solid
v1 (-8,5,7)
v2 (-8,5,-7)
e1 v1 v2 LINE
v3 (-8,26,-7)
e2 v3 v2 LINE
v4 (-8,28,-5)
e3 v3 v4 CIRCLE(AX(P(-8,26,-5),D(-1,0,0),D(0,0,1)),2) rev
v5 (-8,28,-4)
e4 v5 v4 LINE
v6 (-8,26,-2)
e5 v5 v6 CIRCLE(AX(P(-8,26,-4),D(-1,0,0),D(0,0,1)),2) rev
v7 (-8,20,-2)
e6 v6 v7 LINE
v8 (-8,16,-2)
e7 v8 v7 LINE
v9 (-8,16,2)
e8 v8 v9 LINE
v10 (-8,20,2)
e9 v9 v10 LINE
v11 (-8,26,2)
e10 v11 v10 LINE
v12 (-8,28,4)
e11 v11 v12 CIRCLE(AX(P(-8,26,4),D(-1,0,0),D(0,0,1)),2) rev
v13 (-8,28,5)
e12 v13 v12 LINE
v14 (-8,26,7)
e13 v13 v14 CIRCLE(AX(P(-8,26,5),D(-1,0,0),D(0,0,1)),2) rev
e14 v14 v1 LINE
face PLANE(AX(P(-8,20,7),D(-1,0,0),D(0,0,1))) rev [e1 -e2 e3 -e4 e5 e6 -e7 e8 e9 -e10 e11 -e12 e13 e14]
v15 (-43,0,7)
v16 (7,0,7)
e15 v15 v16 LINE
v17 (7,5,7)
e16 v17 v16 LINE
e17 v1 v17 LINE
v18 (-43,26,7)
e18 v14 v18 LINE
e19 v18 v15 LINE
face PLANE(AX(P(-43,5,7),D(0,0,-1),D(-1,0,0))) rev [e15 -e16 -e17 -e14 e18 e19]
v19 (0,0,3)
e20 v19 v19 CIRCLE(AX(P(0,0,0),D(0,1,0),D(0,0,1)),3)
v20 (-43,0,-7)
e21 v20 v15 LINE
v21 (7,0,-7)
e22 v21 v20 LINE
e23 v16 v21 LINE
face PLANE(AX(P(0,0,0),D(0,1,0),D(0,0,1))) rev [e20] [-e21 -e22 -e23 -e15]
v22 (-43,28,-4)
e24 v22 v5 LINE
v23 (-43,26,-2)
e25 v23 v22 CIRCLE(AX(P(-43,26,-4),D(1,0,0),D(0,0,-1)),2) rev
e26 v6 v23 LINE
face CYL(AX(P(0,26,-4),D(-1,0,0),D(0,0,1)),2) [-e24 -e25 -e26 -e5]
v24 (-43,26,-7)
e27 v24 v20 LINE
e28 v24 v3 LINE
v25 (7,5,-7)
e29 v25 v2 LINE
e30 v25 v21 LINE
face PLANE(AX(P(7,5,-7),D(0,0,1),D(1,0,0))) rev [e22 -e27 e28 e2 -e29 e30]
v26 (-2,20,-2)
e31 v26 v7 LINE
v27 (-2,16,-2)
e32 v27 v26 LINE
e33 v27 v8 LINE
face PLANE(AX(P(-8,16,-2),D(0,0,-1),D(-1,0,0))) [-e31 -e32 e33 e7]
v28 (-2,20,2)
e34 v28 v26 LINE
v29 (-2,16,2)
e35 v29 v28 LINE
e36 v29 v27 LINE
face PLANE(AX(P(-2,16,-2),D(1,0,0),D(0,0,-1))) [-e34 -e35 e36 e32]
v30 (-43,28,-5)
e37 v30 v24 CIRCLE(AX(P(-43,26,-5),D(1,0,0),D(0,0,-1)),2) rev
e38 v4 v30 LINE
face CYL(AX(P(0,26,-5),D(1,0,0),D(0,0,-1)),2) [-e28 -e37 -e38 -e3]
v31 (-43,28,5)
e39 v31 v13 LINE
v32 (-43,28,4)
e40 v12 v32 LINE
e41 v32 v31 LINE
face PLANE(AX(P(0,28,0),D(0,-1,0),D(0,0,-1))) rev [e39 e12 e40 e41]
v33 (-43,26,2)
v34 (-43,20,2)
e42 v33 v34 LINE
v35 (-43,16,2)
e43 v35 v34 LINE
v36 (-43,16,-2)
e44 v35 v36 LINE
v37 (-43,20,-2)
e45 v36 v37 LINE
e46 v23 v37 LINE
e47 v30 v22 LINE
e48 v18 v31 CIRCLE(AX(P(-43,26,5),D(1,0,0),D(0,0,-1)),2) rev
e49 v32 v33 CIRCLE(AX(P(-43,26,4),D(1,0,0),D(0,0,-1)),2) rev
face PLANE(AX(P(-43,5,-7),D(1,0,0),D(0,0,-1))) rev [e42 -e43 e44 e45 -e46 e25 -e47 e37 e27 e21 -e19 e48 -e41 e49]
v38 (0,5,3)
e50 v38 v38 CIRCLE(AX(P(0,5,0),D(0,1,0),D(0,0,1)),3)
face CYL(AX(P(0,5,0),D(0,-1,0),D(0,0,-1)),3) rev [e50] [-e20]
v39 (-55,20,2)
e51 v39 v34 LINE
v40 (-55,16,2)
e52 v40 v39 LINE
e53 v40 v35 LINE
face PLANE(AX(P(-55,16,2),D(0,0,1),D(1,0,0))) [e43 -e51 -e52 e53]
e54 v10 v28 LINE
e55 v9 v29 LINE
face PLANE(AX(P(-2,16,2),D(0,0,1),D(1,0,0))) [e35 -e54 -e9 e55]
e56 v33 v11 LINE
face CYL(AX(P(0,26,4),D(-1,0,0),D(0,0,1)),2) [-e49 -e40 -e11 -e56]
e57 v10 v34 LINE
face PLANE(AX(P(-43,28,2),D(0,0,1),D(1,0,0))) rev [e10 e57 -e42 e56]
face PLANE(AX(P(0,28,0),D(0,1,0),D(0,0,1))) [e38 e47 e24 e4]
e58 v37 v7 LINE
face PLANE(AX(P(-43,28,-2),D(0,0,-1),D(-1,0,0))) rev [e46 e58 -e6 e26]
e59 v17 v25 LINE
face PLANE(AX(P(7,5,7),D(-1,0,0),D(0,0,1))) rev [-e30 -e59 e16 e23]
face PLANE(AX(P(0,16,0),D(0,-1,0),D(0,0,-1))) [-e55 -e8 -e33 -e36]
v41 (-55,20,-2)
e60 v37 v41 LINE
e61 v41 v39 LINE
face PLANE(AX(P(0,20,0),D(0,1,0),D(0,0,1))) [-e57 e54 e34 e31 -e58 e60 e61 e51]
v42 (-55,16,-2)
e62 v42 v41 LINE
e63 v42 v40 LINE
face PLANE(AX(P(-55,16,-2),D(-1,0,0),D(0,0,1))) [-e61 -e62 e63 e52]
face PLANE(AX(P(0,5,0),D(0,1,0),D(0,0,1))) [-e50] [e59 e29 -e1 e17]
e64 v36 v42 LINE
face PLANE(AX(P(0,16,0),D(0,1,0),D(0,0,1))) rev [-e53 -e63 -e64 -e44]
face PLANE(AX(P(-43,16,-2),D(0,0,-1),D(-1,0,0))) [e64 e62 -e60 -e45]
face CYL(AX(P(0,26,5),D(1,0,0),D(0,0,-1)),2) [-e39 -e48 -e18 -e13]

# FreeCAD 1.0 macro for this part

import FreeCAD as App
import Part
import Sketcher
Q = App.Units.Quantity


def edges_at(feature, points):
    """Names of the edges that pass closest to the given points."""
    edges = feature.Shape.Edges
    near = lambda p: min(range(len(edges)), key=lambda i: edges[i].distToShape(Part.Vertex(*p))[0])
    return sorted({f"Edge{near(p) + 1}" for p in points})

doc = App.newDocument("Part")
body = doc.addObject("PartDesign::Body", "Body")

# Sketch on XZ plane
sketch1 = body.newObject("Sketcher::SketchObject", "Sketch")
sketch1.AttachmentSupport = (doc.getObject("XZ_Plane"), [""])
sketch1.MapMode = "FlatFace"
sketch1.addGeometry(Part.LineSegment(App.Vector(-43, -7, 0), App.Vector(-43, 7, 0)), False)
sketch1.addGeometry(Part.LineSegment(App.Vector(-43, 7, 0), App.Vector(7, 7, 0)), False)
sketch1.addGeometry(Part.LineSegment(App.Vector(7, 7, 0), App.Vector(7, -7, 0)), False)
sketch1.addGeometry(Part.LineSegment(App.Vector(7, -7, 0), App.Vector(-43, -7, 0)), False)
sketch1.addGeometry(Part.Circle(App.Vector(0, 0, 0), App.Vector(0, 0, 1), 3), False)
sketch1.addConstraint(Sketcher.Constraint("Coincident", 0, 2, 1, 1))
sketch1.addConstraint(Sketcher.Constraint("Coincident", 1, 2, 2, 1))
sketch1.addConstraint(Sketcher.Constraint("Coincident", 2, 2, 3, 1))
sketch1.addConstraint(Sketcher.Constraint("Coincident", 3, 2, 0, 1))
sketch1.addConstraint(Sketcher.Constraint("Vertical", 0))
sketch1.addConstraint(Sketcher.Constraint("Horizontal", 1))
sketch1.addConstraint(Sketcher.Constraint("Vertical", 2))
sketch1.addConstraint(Sketcher.Constraint("Horizontal", 3))
sketch1.addConstraint(Sketcher.Constraint("Coincident", 4, 3, -1, 1))
sketch1.addConstraint(Sketcher.Constraint("Diameter", 4, Q("6 mm")))
sketch1.addConstraint(Sketcher.Constraint("DistanceX", 1, 1, 1, 2, Q("50 mm")))
sketch1.addConstraint(Sketcher.Constraint("DistanceY", 0, 1, 0, 2, Q("14 mm")))
sketch1.addConstraint(Sketcher.Constraint("DistanceX", 0, 2, -1, 1, Q("43 mm")))
sketch1.addConstraint(Sketcher.Constraint("DistanceY", -1, 1, 0, 2, Q("7 mm")))
pad1 = body.newObject("PartDesign::Pad", "Pad")
pad1.Profile = sketch1
pad1.Length = 5
pad1.Reversed = True

# Sketch on XZ plane
sketch2 = body.newObject("Sketcher::SketchObject", "Sketch001")
sketch2.AttachmentSupport = (doc.getObject("XZ_Plane"), [""])
sketch2.MapMode = "FlatFace"
sketch2.AttachmentOffset = App.Placement(App.Vector(0, 0, -5), App.Rotation())
sketch2.addGeometry(Part.LineSegment(App.Vector(-43, -7, 0), App.Vector(-43, 7, 0)), False)
sketch2.addGeometry(Part.LineSegment(App.Vector(-43, 7, 0), App.Vector(-8, 7, 0)), False)
sketch2.addGeometry(Part.LineSegment(App.Vector(-8, 7, 0), App.Vector(-8, -7, 0)), False)
sketch2.addGeometry(Part.LineSegment(App.Vector(-8, -7, 0), App.Vector(-43, -7, 0)), False)
sketch2.addConstraint(Sketcher.Constraint("Coincident", 0, 2, 1, 1))
sketch2.addConstraint(Sketcher.Constraint("Coincident", 1, 2, 2, 1))
sketch2.addConstraint(Sketcher.Constraint("Coincident", 2, 2, 3, 1))
sketch2.addConstraint(Sketcher.Constraint("Coincident", 3, 2, 0, 1))
sketch2.addConstraint(Sketcher.Constraint("Vertical", 0))
sketch2.addConstraint(Sketcher.Constraint("Horizontal", 1))
sketch2.addConstraint(Sketcher.Constraint("Vertical", 2))
sketch2.addConstraint(Sketcher.Constraint("Horizontal", 3))
sketch2.addConstraint(Sketcher.Constraint("DistanceX", 1, 1, 1, 2, Q("35 mm")))
sketch2.addConstraint(Sketcher.Constraint("DistanceY", 0, 1, 0, 2, Q("14 mm")))
sketch2.addConstraint(Sketcher.Constraint("DistanceX", 0, 2, -1, 1, Q("43 mm")))
sketch2.addConstraint(Sketcher.Constraint("DistanceY", -1, 1, 0, 2, Q("7 mm")))
pad2 = body.newObject("PartDesign::Pad", "Pad001")
pad2.Profile = sketch2
pad2.Length = 15
pad2.Reversed = True

# Sketch on XZ plane
sketch3 = body.newObject("Sketcher::SketchObject", "Sketch002")
sketch3.AttachmentSupport = (doc.getObject("XZ_Plane"), [""])
sketch3.MapMode = "FlatFace"
sketch3.AttachmentOffset = App.Placement(App.Vector(0, 0, -20), App.Rotation())
sketch3.addGeometry(Part.LineSegment(App.Vector(-43, 2, 0), App.Vector(-43, 7, 0)), False)
sketch3.addGeometry(Part.LineSegment(App.Vector(-43, 7, 0), App.Vector(-8, 7, 0)), False)
sketch3.addGeometry(Part.LineSegment(App.Vector(-8, 7, 0), App.Vector(-8, 2, 0)), False)
sketch3.addGeometry(Part.LineSegment(App.Vector(-8, 2, 0), App.Vector(-43, 2, 0)), False)
sketch3.addGeometry(Part.LineSegment(App.Vector(-43, -7, 0), App.Vector(-43, -2, 0)), False)
sketch3.addGeometry(Part.LineSegment(App.Vector(-43, -2, 0), App.Vector(-8, -2, 0)), False)
sketch3.addGeometry(Part.LineSegment(App.Vector(-8, -2, 0), App.Vector(-8, -7, 0)), False)
sketch3.addGeometry(Part.LineSegment(App.Vector(-8, -7, 0), App.Vector(-43, -7, 0)), False)
sketch3.addConstraint(Sketcher.Constraint("Coincident", 0, 2, 1, 1))
sketch3.addConstraint(Sketcher.Constraint("Coincident", 1, 2, 2, 1))
sketch3.addConstraint(Sketcher.Constraint("Coincident", 2, 2, 3, 1))
sketch3.addConstraint(Sketcher.Constraint("Coincident", 3, 2, 0, 1))
sketch3.addConstraint(Sketcher.Constraint("Coincident", 4, 2, 5, 1))
sketch3.addConstraint(Sketcher.Constraint("Coincident", 5, 2, 6, 1))
sketch3.addConstraint(Sketcher.Constraint("Coincident", 6, 2, 7, 1))
sketch3.addConstraint(Sketcher.Constraint("Coincident", 7, 2, 4, 1))
sketch3.addConstraint(Sketcher.Constraint("Vertical", 0))
sketch3.addConstraint(Sketcher.Constraint("Horizontal", 1))
sketch3.addConstraint(Sketcher.Constraint("Vertical", 2))
sketch3.addConstraint(Sketcher.Constraint("Horizontal", 3))
sketch3.addConstraint(Sketcher.Constraint("Vertical", 4))
sketch3.addConstraint(Sketcher.Constraint("Horizontal", 5))
sketch3.addConstraint(Sketcher.Constraint("Vertical", 6))
sketch3.addConstraint(Sketcher.Constraint("Horizontal", 7))
sketch3.addConstraint(Sketcher.Constraint("Symmetric", 3, 2, 4, 2, -1))
sketch3.addConstraint(Sketcher.Constraint("Symmetric", 1, 2, 6, 2, -1))
sketch3.addConstraint(Sketcher.Constraint("DistanceX", 1, 1, 1, 2, Q("35 mm")))
sketch3.addConstraint(Sketcher.Constraint("DistanceY", 0, 1, 0, 2, Q("5 mm")))
sketch3.addConstraint(Sketcher.Constraint("DistanceX", 0, 2, -1, 1, Q("43 mm")))
sketch3.addConstraint(Sketcher.Constraint("DistanceY", -1, 1, 0, 2, Q("7 mm")))
pad3 = body.newObject("PartDesign::Pad", "Pad002")
pad3.Profile = sketch3
pad3.Length = 8
pad3.Reversed = True

# Sketch on XZ plane
sketch4 = body.newObject("Sketcher::SketchObject", "Sketch003")
sketch4.AttachmentSupport = (doc.getObject("XZ_Plane"), [""])
sketch4.MapMode = "FlatFace"
sketch4.AttachmentOffset = App.Placement(App.Vector(0, 0, -20), App.Rotation())
sketch4.addGeometry(Part.LineSegment(App.Vector(-55, -2, 0), App.Vector(-55, 2, 0)), False)
sketch4.addGeometry(Part.LineSegment(App.Vector(-55, 2, 0), App.Vector(-43, 2, 0)), False)
sketch4.addGeometry(Part.LineSegment(App.Vector(-43, 2, 0), App.Vector(-43, -2, 0)), False)
sketch4.addGeometry(Part.LineSegment(App.Vector(-43, -2, 0), App.Vector(-55, -2, 0)), False)
sketch4.addGeometry(Part.LineSegment(App.Vector(-8, -2, 0), App.Vector(-8, 2, 0)), False)
sketch4.addGeometry(Part.LineSegment(App.Vector(-8, 2, 0), App.Vector(-2, 2, 0)), False)
sketch4.addGeometry(Part.LineSegment(App.Vector(-2, 2, 0), App.Vector(-2, -2, 0)), False)
sketch4.addGeometry(Part.LineSegment(App.Vector(-2, -2, 0), App.Vector(-8, -2, 0)), False)
sketch4.addConstraint(Sketcher.Constraint("Coincident", 0, 2, 1, 1))
sketch4.addConstraint(Sketcher.Constraint("Coincident", 1, 2, 2, 1))
sketch4.addConstraint(Sketcher.Constraint("Coincident", 2, 2, 3, 1))
sketch4.addConstraint(Sketcher.Constraint("Coincident", 3, 2, 0, 1))
sketch4.addConstraint(Sketcher.Constraint("Coincident", 4, 2, 5, 1))
sketch4.addConstraint(Sketcher.Constraint("Coincident", 5, 2, 6, 1))
sketch4.addConstraint(Sketcher.Constraint("Coincident", 6, 2, 7, 1))
sketch4.addConstraint(Sketcher.Constraint("Coincident", 7, 2, 4, 1))
sketch4.addConstraint(Sketcher.Constraint("Vertical", 0))
sketch4.addConstraint(Sketcher.Constraint("Horizontal", 1))
sketch4.addConstraint(Sketcher.Constraint("Vertical", 2))
sketch4.addConstraint(Sketcher.Constraint("Horizontal", 3))
sketch4.addConstraint(Sketcher.Constraint("Vertical", 4))
sketch4.addConstraint(Sketcher.Constraint("Horizontal", 5))
sketch4.addConstraint(Sketcher.Constraint("Vertical", 6))
sketch4.addConstraint(Sketcher.Constraint("Horizontal", 7))
sketch4.addConstraint(Sketcher.Constraint("Horizontal", 1, 2, 4, 2))
sketch4.addConstraint(Sketcher.Constraint("Horizontal", 3, 2, 6, 2))
sketch4.addConstraint(Sketcher.Constraint("DistanceX", 1, 1, 1, 2, Q("12 mm")))
sketch4.addConstraint(Sketcher.Constraint("DistanceX", 5, 1, 5, 2, Q("6 mm")))
sketch4.addConstraint(Sketcher.Constraint("DistanceY", 0, 1, 0, 2, Q("4 mm")))
sketch4.addConstraint(Sketcher.Constraint("DistanceX", 0, 2, -1, 1, Q("55 mm")))
sketch4.addConstraint(Sketcher.Constraint("DistanceY", -1, 1, 0, 2, Q("2 mm")))
sketch4.addConstraint(Sketcher.Constraint("DistanceX", 4, 2, -1, 1, Q("8 mm")))
pad4 = body.newObject("PartDesign::Pad", "Pad003")
pad4.Profile = sketch4
pad4.Length = 4
doc.recompute()

fillet = body.newObject("PartDesign::Fillet", "Fillet")
fillet.Base = (pad4, edges_at(pad4, [
    (-25.5, 28, 7),
    (-25.5, 28, 2),
    (-25.5, 28, -7),
    (-25.5, 28, -2),
]))
fillet.Radius = 2

doc.recompute()
